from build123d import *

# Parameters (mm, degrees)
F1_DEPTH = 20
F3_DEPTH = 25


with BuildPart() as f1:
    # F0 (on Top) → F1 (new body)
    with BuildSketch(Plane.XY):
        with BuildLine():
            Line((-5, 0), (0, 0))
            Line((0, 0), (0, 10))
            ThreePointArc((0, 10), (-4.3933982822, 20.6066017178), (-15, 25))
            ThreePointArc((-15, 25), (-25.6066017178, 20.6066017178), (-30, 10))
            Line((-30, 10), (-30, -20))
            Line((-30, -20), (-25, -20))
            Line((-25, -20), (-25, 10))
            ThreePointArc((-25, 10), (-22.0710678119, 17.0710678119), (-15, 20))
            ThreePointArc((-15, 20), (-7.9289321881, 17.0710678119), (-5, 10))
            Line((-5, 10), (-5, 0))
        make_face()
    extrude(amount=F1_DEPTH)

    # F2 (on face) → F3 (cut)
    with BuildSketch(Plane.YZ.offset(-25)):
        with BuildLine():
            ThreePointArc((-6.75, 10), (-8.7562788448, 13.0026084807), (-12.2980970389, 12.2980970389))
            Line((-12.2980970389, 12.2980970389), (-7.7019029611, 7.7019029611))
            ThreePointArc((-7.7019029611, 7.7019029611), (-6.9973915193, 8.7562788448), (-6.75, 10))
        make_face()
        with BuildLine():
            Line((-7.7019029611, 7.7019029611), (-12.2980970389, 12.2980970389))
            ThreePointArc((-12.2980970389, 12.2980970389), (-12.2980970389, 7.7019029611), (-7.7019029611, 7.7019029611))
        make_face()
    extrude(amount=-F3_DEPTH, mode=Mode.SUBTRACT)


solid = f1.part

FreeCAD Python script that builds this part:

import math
import FreeCAD as App
import Part
import Sketcher

V = App.Vector
Q = App.Units.Quantity

doc = App.newDocument("Part")
params = doc.addObject("Spreadsheet::Sheet", "Params")
for row, (alias, value) in enumerate([
    ("sketch1_radius", "15 mm"),
    ("sketch1_radius2", "10 mm"),
    ("sketch1_height", "10 mm"),
    ("sketch1_height2", "30 mm"),
    ("pad1_length", "20 mm"),
    ("sketch2_radius", "3.25 mm"),
    ("pocket1_length", "25 mm"),
], start=1):
    params.set(f"A{row}", alias)
    params.set(f"B{row}", "=" + value)
    params.setAlias(f"B{row}", alias)

body = doc.addObject("PartDesign::Body", "Body")

# Sketch on XY plane
sketch1 = body.newObject("Sketcher::SketchObject", "Sketch")
sketch1.AttachmentSupport = (doc.getObject("XY_Plane"), [""])
sketch1.MapMode = "FlatFace"
sketch1.addGeometry([
    Part.LineSegment(V(-5, 0, 0), V(0, 0, 0)),  # 0
    Part.LineSegment(V(0, 0, 0), V(0, 10, 0)),  # 1
    Part.ArcOfCircle(Part.Circle(V(-15, 10, 0), V(0, 0, 1), 15), math.radians(0), math.radians(180)),  # 2
    Part.LineSegment(V(-30, 10, 0), V(-30, -20, 0)),  # 3
    Part.LineSegment(V(-30, -20, 0), V(-25, -20, 0)),  # 4
    Part.LineSegment(V(-25, -20, 0), V(-25, 10, 0)),  # 5
    Part.ArcOfCircle(Part.Circle(V(-15, 10, 0), V(0, 0, 1), 10), math.radians(90), math.radians(180)),  # 6
    Part.ArcOfCircle(Part.Circle(V(-15, 10, 0), V(0, 0, 1), 10), math.radians(0), math.radians(90)),  # 7
    Part.LineSegment(V(-5, 10, 0), V(-5, 0, 0)),  # 8
], False)
sketch1.addConstraint([
    Sketcher.Constraint("Coincident", 0, 2, 1, 1),
    Sketcher.Constraint("Tangent", 1, 2, 2, 1),
    Sketcher.Constraint("Tangent", 2, 2, 3, 1),
    Sketcher.Constraint("Coincident", 3, 2, 4, 1),
    Sketcher.Constraint("Coincident", 4, 2, 5, 1),
    Sketcher.Constraint("Tangent", 5, 2, 6, 2),
    Sketcher.Constraint("Tangent", 6, 1, 7, 2),
    Sketcher.Constraint("Tangent", 7, 1, 8, 1),
    Sketcher.Constraint("Coincident", 8, 2, 0, 1),
    Sketcher.Constraint("Horizontal", 0),
    Sketcher.Constraint("Vertical", 1),
    Sketcher.Constraint("Vertical", 3),
    Sketcher.Constraint("Horizontal", 4),
    Sketcher.Constraint("Vertical", 5),
    Sketcher.Constraint("Vertical", 8),
    Sketcher.Constraint("Coincident", 0, 2, -1, 1),
    Sketcher.Constraint("Coincident", 6, 3, 2, 3),
    Sketcher.Constraint("Equal", 6, 7),
    Sketcher.Constraint("Vertical", 7, 3, 6, 1),
    Sketcher.Constraint("Radius", 2, Q("15 mm")),
    Sketcher.Constraint("Radius", 6, Q("10 mm")),
    Sketcher.Constraint("DistanceY", 1, 1, 1, 2, Q("10 mm")),
    Sketcher.Constraint("DistanceY", 3, 2, 3, 1, Q("30 mm")),
])
sketch1.setExpression("Constraints[19]", "Params.sketch1_radius")
sketch1.setExpression("Constraints[20]", "Params.sketch1_radius2")
sketch1.setExpression("Constraints[21]", "Params.sketch1_height")
sketch1.setExpression("Constraints[22]", "Params.sketch1_height2")
pad1 = body.newObject("PartDesign::Pad", "Pad")
pad1.Profile = sketch1
pad1.setExpression("Length", "Params.pad1_length")

# Sketch on YZ plane
sketch2 = body.newObject("Sketcher::SketchObject", "Sketch001")
sketch2.AttachmentSupport = (doc.getObject("YZ_Plane"), [""])
sketch2.MapMode = "FlatFace"
sketch2.AttachmentOffset = App.Placement(V(0, 0, -25), App.Rotation())
sketch2.addGeometry([
    Part.ArcOfCircle(Part.Circle(V(-10, 10, 0), V(0, 0, 1), 3.2), math.radians(0), math.radians(315)),
    Part.ArcOfCircle(Part.Circle(V(-10, 10, 0), V(0, 0, 1), 3.2), math.radians(-45), math.radians(0)),
], False)
sketch2.addConstraint([
    Sketcher.Constraint("Tangent", 0, 1, 1, 2),
    Sketcher.Constraint("Coincident", 1, 1, 0, 2),
    Sketcher.Constraint("Horizontal", 1, 3, 0, 1),
    Sketcher.Constraint("Radius", 0, Q("3.25 mm")),
    Sketcher.Constraint("DistanceX", 0, 3, -1, 1, Q("10 mm")),
    Sketcher.Constraint("DistanceY", -1, 1, 0, 3, Q("10 mm")),
    Sketcher.Constraint("DistanceX", 1, 1, -1, 1, Q("7.701903 mm")),
])
sketch2.setExpression("Constraints[3]", "Params.sketch2_radius")
pocket1 = body.newObject("PartDesign::Pocket", "Pocket")
pocket1.Profile = sketch2
pocket1.setExpression("Length", "Params.pocket1_length")

doc.recompute()
